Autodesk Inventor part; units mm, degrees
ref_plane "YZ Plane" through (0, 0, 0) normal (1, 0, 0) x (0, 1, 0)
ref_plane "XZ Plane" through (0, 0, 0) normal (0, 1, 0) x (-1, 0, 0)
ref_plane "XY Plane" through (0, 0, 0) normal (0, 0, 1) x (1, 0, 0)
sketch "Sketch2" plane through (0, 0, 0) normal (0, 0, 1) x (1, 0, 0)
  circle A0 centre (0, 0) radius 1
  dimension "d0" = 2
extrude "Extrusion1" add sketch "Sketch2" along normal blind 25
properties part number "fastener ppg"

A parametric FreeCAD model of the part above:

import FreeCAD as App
import Part
import Sketcher

V = App.Vector

doc = App.newDocument("Part")
body = doc.addObject("PartDesign::Body", "Body")

# Sketch on XY plane
sketch1 = body.newObject("Sketcher::SketchObject", "Sketch")
sketch1.AttachmentSupport = (doc.getObject("XY_Plane"), [""])
sketch1.MapMode = "FlatFace"
sketch1.addGeometry(Part.Circle(V(0, 0, 0), V(0, 0, 1), 1), False)
sketch1.addConstraint([
    Sketcher.Constraint("Coincident", 0, 3, -1, 1),
    Sketcher.Constraint("Diameter", 0, 2.0),
])
pad1 = body.newObject("PartDesign::Pad", "Pad")
pad1.Profile = sketch1
pad1.Length = 25

doc.recompute()
